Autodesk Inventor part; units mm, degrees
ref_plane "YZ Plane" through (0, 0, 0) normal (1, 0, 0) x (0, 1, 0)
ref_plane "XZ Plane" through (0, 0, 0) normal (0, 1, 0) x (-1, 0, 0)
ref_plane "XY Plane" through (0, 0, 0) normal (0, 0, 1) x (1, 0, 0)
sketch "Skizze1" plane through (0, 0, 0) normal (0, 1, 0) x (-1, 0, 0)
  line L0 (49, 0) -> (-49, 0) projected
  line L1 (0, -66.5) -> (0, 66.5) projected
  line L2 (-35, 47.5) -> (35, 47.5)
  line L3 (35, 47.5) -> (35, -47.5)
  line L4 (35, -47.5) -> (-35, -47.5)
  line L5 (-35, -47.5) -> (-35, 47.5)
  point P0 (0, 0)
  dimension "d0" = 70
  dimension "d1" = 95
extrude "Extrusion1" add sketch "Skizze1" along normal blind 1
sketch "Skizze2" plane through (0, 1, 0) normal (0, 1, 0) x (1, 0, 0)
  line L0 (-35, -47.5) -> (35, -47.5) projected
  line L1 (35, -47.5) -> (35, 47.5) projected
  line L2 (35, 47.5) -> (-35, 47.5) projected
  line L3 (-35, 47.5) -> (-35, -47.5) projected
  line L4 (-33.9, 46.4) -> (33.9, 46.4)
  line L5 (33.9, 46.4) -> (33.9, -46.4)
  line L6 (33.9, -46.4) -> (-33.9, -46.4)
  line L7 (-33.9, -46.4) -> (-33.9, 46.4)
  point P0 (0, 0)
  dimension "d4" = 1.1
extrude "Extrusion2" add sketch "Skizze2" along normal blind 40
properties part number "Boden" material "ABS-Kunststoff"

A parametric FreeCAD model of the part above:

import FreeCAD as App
import Part
import Sketcher
Q = App.Units.Quantity

doc = App.newDocument("Part")
params = doc.addObject("Spreadsheet::Sheet", "Params")
for row, (alias, value) in enumerate([
    ("sketch1_width", "70 mm"),
    ("sketch1_height", "95 mm"),
    ("pad1_length", "1 mm"),
    ("sketch2_width", "70 mm"),
    ("sketch2_height", "95 mm"),
    ("pad2_length", "40 mm"),
], start=1):
    params.set(f"A{row}", alias)
    params.set(f"B{row}", "=" + value)
    params.setAlias(f"B{row}", alias)

body = doc.addObject("PartDesign::Body", "Body")

sketch1 = body.newObject("Sketcher::SketchObject", "Sketch")
sketch1.AttachmentSupport = (doc.getObject("XZ_Plane"), [""])
sketch1.MapMode = "FlatFace"
sketch1.addGeometry([
    Part.LineSegment(App.Vector(-35, -47.5, 0), App.Vector(-35, 47.5, 0)),
    Part.LineSegment(App.Vector(-35, 47.5, 0), App.Vector(35, 47.5, 0)),
    Part.LineSegment(App.Vector(35, 47.5, 0), App.Vector(35, -47.5, 0)),
    Part.LineSegment(App.Vector(35, -47.5, 0), App.Vector(-35, -47.5, 0)),
], False)
sketch1.addConstraint([
    Sketcher.Constraint("Coincident", 0, 2, 1, 1),
    Sketcher.Constraint("Coincident", 1, 2, 2, 1),
    Sketcher.Constraint("Coincident", 2, 2, 3, 1),
    Sketcher.Constraint("Coincident", 3, 2, 0, 1),
    Sketcher.Constraint("Vertical", 0),
    Sketcher.Constraint("Horizontal", 1),
    Sketcher.Constraint("Vertical", 2),
    Sketcher.Constraint("Horizontal", 3),
    Sketcher.Constraint("Symmetric", 0, 2, 2, 2, -1, 1),
    Sketcher.Constraint("DistanceX", 1, 1, 1, 2, Q("70 mm")),
    Sketcher.Constraint("DistanceY", 0, 1, 0, 2, Q("95 mm")),
])
sketch1.setExpression("Constraints[9]", "Params.sketch1_width")
sketch1.setExpression("Constraints[10]", "Params.sketch1_height")
pad1 = body.newObject("PartDesign::Pad", "Pad")
pad1.Profile = sketch1
pad1.setExpression("Length", "Params.pad1_length")
pad1.Reversed = True

sketch2 = body.newObject("Sketcher::SketchObject", "Sketch001")
sketch2.AttachmentSupport = (doc.getObject("XZ_Plane"), [""])
sketch2.MapMode = "FlatFace"
sketch2.AttachmentOffset = App.Placement(App.Vector(0, 0, -1), App.Rotation())
sketch2.addGeometry([
    Part.LineSegment(App.Vector(-35, -47.5, 0), App.Vector(-35, 47.5, 0)),
    Part.LineSegment(App.Vector(-35, 47.5, 0), App.Vector(35, 47.5, 0)),
    Part.LineSegment(App.Vector(35, 47.5, 0), App.Vector(35, -47.5, 0)),
    Part.LineSegment(App.Vector(35, -47.5, 0), App.Vector(-35, -47.5, 0)),
    Part.LineSegment(App.Vector(-33.9, 46.4, 0), App.Vector(-33.9, -46.4, 0)),
    Part.LineSegment(App.Vector(-33.9, -46.4, 0), App.Vector(33.9, -46.4, 0)),
    Part.LineSegment(App.Vector(33.9, -46.4, 0), App.Vector(33.9, 46.4, 0)),
    Part.LineSegment(App.Vector(33.9, 46.4, 0), App.Vector(-33.9, 46.4, 0)),
], False)
sketch2.addConstraint([
    Sketcher.Constraint("Coincident", 0, 2, 1, 1),
    Sketcher.Constraint("Coincident", 1, 2, 2, 1),
    Sketcher.Constraint("Coincident", 2, 2, 3, 1),
    Sketcher.Constraint("Coincident", 3, 2, 0, 1),
    Sketcher.Constraint("Coincident", 4, 2, 5, 1),
    Sketcher.Constraint("Coincident", 5, 2, 6, 1),
    Sketcher.Constraint("Coincident", 6, 2, 7, 1),
    Sketcher.Constraint("Coincident", 7, 2, 4, 1),
    Sketcher.Constraint("Vertical", 0),
    Sketcher.Constraint("Horizontal", 1),
    Sketcher.Constraint("Vertical", 2),
    Sketcher.Constraint("Horizontal", 3),
    Sketcher.Constraint("Vertical", 4),
    Sketcher.Constraint("Horizontal", 5),
    Sketcher.Constraint("Vertical", 6),
    Sketcher.Constraint("Horizontal", 7),
    Sketcher.Constraint("Symmetric", 0, 2, 2, 2, -1, 1),
    Sketcher.Constraint("Symmetric", 4, 2, 6, 2, -1, 1),
    Sketcher.Constraint("DistanceX", 3, 2, 4, 2, Q("1.1 mm")),
    Sketcher.Constraint("DistanceY", 3, 2, 4, 2, Q("1.1 mm")),
    Sketcher.Constraint("DistanceX", 1, 1, 1, 2, Q("70 mm")),
    Sketcher.Constraint("DistanceY", 0, 1, 0, 2, Q("95 mm")),
])
sketch2.setExpression("Constraints[20]", "Params.sketch2_width")
sketch2.setExpression("Constraints[21]", "Params.sketch2_height")
pad2 = body.newObject("PartDesign::Pad", "Pad001")
pad2.Profile = sketch2
pad2.setExpression("Length", "Params.pad2_length")
pad2.Reversed = True

doc.recompute()
